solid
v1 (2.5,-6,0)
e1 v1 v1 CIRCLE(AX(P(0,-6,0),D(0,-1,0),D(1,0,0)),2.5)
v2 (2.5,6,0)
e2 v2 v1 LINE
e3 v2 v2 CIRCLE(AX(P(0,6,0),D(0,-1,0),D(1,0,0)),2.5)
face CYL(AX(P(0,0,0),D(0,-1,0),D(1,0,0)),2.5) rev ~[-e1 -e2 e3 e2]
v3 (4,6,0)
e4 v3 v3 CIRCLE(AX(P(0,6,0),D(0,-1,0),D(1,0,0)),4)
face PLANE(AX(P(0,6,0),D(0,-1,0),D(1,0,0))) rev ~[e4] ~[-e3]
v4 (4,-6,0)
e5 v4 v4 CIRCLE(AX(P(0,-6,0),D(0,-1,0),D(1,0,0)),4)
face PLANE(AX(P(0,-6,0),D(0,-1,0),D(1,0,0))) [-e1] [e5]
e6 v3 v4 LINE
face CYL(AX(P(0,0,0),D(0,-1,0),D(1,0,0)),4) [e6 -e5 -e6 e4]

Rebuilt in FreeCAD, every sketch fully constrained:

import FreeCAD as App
import Part
import Sketcher

doc = App.newDocument("Part")
params = doc.addObject("Spreadsheet::Sheet", "Params")
for row, (alias, value) in enumerate([
    ("sketch1_diameter", "8 mm"),
    ("pad1_length", "12 mm"),
    ("sketch2_diameter", "5 mm"),
    ("pocket1_length", "25 mm"),
], start=1):
    params.set(f"A{row}", alias)
    params.set(f"B{row}", "=" + value)
    params.setAlias(f"B{row}", alias)

body = doc.addObject("PartDesign::Body", "Body")

sketch1 = body.newObject("Sketcher::SketchObject", "Sketch")
sketch1.AttachmentSupport = (doc.getObject("XZ_Plane"), [""])
sketch1.MapMode = "FlatFace"
sketch1.addGeometry(Part.Circle(App.Vector(0, 0, 0), App.Vector(0, 0, 1), 4), False)
sketch1.addConstraint([
    Sketcher.Constraint("Coincident", 0, 3, -1, 1),
    Sketcher.Constraint("Diameter", 0, 8.0),
])
sketch1.setExpression("Constraints[1]", "Params.sketch1_diameter")
pad1 = body.newObject("PartDesign::Pad", "Pad")
pad1.Profile = sketch1
pad1.setExpression("Length", "Params.pad1_length")
pad1.Midplane = True

sketch2 = body.newObject("Sketcher::SketchObject", "Sketch001")
sketch2.AttachmentSupport = (doc.getObject("XZ_Plane"), [""])
sketch2.MapMode = "FlatFace"
sketch2.addGeometry(Part.Circle(App.Vector(0, 0, 0), App.Vector(0, 0, 1), 2.5), False)
sketch2.addConstraint([
    Sketcher.Constraint("Coincident", 0, 3, -1, 1),
    Sketcher.Constraint("Diameter", 0, 5.0),
])
sketch2.setExpression("Constraints[1]", "Params.sketch2_diameter")
pocket1 = body.newObject("PartDesign::Pocket", "Pocket")
pocket1.Profile = sketch2
pocket1.setExpression("Length", "Params.pocket1_length")
pocket1.Midplane = True

doc.recompute()
